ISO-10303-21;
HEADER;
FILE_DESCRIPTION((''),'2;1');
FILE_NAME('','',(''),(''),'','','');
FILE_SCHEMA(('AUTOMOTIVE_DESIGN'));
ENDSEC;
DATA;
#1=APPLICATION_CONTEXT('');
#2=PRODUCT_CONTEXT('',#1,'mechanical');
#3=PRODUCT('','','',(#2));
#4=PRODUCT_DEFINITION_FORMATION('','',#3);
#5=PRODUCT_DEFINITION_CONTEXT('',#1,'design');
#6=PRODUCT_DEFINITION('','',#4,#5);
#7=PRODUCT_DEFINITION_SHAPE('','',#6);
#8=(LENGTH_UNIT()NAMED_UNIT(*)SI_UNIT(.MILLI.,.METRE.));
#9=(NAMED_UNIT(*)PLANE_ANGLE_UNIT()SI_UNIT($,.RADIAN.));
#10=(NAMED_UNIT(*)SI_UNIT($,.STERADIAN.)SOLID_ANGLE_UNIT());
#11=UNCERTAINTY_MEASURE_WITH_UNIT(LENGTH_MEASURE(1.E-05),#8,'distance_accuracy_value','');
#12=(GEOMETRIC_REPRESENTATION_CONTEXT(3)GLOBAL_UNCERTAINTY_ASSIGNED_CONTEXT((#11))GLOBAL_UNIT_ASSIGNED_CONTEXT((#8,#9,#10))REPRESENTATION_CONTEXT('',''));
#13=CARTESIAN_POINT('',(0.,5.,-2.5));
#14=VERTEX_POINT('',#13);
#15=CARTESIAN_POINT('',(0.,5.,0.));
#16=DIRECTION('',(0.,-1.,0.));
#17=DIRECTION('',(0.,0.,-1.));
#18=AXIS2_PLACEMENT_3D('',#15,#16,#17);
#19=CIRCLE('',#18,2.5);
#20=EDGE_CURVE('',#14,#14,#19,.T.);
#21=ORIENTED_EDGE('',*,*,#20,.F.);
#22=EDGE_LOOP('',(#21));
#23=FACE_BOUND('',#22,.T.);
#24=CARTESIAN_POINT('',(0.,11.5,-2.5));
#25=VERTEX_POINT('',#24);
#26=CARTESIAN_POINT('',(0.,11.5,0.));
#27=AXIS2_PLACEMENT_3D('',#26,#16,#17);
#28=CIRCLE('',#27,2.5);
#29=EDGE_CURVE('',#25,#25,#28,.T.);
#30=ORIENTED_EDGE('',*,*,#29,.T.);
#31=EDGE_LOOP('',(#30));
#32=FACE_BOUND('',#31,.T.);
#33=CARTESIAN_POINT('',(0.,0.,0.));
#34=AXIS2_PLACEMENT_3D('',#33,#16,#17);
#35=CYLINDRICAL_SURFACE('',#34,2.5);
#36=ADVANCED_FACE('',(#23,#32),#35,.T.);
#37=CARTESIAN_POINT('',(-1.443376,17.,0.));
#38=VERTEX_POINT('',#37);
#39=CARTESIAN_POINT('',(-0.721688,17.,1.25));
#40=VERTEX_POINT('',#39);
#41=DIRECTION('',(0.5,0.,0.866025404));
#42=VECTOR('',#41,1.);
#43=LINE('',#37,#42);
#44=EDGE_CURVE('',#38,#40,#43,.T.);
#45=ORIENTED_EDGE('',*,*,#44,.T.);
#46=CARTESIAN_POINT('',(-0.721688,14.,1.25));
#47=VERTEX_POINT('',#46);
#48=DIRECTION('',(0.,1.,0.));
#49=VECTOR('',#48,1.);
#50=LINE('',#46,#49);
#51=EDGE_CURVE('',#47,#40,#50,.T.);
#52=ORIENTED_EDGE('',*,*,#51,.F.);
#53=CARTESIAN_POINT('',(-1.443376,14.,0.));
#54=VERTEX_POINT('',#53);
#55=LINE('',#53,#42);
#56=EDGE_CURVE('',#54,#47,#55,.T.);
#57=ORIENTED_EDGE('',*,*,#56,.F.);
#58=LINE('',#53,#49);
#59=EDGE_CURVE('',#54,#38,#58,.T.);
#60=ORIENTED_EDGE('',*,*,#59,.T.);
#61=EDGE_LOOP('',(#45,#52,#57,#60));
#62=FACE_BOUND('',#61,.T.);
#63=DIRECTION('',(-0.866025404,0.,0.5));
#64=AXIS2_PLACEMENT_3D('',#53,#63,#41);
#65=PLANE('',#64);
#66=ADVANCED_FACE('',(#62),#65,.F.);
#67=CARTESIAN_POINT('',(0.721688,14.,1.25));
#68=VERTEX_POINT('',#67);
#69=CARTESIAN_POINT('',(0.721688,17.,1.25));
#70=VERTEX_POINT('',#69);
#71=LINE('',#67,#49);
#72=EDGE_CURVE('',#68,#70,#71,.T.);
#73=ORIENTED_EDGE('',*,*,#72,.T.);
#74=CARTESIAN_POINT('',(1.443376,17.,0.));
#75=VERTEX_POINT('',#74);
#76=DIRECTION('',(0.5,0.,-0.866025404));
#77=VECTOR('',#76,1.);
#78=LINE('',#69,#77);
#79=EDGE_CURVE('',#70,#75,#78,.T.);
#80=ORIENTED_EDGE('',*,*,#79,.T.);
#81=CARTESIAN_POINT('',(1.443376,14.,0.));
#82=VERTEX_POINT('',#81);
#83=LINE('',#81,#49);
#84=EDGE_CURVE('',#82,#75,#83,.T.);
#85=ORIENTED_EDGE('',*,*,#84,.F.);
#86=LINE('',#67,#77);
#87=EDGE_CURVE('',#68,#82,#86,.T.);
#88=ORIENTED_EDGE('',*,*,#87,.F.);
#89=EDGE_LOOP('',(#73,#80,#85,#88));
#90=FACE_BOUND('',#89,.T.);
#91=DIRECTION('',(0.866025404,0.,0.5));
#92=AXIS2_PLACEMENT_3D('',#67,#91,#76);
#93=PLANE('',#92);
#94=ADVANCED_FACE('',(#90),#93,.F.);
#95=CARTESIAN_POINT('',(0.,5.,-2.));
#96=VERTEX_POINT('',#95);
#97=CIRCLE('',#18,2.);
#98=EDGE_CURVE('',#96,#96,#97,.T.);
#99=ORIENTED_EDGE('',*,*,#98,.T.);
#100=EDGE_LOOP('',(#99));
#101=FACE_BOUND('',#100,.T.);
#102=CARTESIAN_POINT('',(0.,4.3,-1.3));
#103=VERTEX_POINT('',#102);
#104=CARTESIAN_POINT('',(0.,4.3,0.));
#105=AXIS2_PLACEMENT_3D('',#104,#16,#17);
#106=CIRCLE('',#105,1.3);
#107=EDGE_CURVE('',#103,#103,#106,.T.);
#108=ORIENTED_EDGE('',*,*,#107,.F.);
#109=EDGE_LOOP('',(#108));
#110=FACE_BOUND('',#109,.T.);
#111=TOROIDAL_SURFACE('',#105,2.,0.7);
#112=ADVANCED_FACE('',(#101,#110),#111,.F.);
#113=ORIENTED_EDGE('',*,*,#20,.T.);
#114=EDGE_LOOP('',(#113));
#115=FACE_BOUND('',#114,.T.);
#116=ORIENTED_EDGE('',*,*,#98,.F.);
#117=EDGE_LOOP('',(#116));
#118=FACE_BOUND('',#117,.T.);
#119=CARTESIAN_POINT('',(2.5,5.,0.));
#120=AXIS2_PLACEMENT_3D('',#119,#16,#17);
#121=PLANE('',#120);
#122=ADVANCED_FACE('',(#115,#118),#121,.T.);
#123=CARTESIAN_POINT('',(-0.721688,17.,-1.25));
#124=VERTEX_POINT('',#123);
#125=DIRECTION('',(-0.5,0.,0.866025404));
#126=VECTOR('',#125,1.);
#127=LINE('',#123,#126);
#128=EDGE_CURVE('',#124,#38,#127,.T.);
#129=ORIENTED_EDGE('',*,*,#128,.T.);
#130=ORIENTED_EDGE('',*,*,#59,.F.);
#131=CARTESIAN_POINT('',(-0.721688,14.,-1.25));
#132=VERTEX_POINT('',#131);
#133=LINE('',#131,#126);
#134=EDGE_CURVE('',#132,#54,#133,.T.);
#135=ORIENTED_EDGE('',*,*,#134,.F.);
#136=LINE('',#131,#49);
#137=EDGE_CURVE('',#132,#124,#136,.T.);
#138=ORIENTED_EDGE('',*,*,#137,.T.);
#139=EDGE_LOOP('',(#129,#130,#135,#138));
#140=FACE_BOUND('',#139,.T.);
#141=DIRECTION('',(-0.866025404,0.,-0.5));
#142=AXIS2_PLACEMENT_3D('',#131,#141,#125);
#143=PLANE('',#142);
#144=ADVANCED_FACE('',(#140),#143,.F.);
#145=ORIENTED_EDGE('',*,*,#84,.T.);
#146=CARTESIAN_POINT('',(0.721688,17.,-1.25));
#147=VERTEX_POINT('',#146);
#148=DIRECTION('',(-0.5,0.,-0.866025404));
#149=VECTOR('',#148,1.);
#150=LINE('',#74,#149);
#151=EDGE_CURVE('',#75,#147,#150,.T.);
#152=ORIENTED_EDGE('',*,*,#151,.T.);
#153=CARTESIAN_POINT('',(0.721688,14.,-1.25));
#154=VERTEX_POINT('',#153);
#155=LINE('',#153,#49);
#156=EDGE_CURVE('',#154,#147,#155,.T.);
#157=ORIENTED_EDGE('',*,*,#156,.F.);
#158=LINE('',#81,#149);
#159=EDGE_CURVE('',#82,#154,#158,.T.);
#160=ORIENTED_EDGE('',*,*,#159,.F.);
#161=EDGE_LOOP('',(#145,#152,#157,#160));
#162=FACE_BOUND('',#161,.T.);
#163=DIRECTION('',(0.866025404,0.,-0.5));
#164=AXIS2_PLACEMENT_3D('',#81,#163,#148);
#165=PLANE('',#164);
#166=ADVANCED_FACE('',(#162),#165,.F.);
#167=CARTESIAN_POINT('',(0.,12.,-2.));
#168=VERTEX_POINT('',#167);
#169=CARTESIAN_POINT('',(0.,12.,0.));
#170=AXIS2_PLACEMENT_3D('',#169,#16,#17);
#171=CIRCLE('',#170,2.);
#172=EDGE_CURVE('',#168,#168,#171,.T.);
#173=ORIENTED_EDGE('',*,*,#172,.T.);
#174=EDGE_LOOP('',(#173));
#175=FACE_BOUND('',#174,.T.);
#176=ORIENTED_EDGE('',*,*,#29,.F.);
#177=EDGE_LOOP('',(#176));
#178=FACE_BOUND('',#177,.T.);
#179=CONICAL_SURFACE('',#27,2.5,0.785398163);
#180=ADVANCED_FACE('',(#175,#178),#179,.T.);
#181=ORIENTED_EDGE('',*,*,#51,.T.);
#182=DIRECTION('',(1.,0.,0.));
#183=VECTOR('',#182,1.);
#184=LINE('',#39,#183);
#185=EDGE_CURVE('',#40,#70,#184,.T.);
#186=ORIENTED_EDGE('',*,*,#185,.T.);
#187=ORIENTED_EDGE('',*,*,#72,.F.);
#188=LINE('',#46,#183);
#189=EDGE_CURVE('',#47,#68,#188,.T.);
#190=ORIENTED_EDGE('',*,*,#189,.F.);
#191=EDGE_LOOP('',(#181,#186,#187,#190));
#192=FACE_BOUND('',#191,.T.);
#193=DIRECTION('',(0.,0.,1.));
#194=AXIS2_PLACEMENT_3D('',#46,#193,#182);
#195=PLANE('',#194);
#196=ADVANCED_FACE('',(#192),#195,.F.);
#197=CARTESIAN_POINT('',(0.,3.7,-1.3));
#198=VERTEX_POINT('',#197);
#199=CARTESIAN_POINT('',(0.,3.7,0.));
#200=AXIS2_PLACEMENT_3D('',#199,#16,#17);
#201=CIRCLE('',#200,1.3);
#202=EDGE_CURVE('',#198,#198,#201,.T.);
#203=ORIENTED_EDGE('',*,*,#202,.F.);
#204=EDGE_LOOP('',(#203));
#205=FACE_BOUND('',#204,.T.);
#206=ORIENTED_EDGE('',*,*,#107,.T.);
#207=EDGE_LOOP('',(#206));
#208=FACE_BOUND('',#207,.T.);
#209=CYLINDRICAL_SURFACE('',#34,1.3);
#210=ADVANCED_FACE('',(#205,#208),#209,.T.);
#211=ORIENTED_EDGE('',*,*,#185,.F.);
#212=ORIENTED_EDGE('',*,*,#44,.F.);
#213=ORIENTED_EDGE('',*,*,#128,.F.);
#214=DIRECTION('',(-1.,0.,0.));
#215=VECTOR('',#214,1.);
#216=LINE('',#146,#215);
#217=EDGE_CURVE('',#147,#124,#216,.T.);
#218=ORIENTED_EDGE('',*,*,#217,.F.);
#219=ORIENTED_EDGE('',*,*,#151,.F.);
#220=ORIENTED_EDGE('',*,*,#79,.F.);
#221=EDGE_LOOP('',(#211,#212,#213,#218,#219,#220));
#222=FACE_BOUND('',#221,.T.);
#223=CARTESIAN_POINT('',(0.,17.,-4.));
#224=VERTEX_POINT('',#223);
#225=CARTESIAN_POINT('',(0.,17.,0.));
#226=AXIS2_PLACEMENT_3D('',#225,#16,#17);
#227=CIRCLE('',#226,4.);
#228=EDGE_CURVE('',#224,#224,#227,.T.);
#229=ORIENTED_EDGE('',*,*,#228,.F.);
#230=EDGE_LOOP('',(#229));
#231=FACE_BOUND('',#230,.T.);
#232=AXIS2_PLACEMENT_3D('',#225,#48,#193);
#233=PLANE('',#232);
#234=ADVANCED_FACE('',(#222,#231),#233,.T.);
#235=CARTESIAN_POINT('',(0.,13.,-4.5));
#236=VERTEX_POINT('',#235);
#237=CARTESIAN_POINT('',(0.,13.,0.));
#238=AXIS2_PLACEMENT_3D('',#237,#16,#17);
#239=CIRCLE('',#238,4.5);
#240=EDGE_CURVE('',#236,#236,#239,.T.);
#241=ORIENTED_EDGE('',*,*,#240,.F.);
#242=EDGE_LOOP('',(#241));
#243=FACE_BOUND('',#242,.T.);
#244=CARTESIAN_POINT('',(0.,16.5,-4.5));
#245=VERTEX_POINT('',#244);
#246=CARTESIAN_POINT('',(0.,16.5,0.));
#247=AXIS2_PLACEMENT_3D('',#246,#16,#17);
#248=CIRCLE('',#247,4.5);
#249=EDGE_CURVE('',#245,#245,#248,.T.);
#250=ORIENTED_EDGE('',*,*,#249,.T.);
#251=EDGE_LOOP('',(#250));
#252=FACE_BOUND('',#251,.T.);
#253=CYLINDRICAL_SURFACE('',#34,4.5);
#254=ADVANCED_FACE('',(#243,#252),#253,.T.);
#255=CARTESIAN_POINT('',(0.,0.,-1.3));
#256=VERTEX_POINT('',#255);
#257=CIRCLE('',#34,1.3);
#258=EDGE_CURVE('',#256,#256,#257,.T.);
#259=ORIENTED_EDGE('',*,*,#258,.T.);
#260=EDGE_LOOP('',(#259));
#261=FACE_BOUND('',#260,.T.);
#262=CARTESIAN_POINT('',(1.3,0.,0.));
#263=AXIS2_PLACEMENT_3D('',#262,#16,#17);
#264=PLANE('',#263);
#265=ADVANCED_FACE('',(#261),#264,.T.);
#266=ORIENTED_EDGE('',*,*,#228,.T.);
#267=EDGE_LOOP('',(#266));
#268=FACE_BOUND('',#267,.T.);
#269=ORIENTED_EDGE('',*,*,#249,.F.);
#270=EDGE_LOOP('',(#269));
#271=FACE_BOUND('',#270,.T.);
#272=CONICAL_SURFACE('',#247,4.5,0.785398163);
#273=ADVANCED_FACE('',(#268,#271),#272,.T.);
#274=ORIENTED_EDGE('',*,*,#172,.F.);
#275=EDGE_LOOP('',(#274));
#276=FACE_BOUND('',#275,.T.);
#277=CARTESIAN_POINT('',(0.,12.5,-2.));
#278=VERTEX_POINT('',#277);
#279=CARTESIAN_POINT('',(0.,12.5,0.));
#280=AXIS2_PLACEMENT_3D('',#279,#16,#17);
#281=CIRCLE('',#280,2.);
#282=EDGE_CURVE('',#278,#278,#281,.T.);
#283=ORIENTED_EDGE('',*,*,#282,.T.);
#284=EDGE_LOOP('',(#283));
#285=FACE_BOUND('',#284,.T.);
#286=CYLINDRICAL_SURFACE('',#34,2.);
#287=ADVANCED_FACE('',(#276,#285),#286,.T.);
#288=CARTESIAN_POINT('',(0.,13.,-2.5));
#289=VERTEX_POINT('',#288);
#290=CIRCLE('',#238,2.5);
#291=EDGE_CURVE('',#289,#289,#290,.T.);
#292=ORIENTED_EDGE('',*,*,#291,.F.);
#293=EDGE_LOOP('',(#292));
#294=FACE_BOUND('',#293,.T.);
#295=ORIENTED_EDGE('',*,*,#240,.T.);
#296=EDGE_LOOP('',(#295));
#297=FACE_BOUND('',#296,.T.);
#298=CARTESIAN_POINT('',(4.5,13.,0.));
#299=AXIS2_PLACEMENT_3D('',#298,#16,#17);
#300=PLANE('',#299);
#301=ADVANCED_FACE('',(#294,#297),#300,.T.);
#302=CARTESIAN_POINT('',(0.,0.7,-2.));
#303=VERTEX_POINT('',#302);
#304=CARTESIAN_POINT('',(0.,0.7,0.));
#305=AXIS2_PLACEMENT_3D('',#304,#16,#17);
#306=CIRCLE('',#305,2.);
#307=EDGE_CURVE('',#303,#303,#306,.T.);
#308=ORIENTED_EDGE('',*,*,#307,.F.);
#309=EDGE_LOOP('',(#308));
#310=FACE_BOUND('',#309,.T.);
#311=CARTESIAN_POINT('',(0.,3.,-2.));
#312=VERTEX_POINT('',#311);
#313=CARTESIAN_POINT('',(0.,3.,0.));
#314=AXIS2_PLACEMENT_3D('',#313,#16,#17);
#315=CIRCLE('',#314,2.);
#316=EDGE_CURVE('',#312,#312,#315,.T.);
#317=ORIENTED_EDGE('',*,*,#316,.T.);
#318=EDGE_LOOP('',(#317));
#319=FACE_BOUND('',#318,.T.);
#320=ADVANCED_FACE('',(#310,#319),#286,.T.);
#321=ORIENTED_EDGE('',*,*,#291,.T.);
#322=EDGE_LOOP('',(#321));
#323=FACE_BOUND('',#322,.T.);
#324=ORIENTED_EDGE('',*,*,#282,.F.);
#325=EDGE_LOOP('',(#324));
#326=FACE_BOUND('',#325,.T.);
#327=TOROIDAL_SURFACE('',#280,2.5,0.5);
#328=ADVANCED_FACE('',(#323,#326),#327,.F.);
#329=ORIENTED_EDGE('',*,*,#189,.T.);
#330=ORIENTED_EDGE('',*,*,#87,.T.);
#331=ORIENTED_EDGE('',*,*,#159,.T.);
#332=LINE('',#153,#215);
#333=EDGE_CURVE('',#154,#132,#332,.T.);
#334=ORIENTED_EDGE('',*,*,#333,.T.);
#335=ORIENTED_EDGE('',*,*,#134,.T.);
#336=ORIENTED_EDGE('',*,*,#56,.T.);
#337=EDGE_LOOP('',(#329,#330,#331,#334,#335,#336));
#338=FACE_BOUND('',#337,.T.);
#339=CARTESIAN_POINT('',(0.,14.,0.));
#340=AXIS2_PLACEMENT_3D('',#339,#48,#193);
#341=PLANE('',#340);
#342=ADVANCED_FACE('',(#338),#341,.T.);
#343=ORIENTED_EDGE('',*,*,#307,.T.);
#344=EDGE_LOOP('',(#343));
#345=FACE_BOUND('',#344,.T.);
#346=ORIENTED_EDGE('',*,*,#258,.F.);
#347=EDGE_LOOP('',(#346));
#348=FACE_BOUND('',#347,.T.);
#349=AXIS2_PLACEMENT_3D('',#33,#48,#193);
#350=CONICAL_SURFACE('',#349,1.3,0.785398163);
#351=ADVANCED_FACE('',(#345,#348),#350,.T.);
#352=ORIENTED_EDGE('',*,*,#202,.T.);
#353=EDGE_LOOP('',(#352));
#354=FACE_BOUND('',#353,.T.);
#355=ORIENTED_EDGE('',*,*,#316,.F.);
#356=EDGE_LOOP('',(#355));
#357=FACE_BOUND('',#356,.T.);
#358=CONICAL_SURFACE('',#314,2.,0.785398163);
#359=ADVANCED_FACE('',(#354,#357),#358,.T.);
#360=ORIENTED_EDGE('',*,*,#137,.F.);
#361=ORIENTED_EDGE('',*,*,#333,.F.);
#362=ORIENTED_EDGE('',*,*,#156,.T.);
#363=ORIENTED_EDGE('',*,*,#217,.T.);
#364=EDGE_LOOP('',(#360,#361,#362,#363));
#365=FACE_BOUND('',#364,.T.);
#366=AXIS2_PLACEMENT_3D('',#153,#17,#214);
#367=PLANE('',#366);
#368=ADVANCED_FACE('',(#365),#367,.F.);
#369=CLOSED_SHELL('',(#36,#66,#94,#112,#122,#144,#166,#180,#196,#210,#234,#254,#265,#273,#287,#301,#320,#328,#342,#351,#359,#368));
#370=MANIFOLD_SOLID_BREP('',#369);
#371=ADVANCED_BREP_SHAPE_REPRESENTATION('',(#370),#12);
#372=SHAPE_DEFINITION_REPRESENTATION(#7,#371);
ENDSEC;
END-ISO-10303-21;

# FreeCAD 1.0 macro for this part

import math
import FreeCAD as App
import Part
import Sketcher
from FreeCAD import Vector
Q = App.Units.Quantity


def add_polygon(sketch, points):
    """Adds a closed chain of lines whose ends are joined by coincident constraints."""
    first, n = sketch.GeometryCount, len(points)
    for a, b in zip(points, points[1:] + points[:1]):
        sketch.addGeometry(Part.LineSegment(App.Vector(*a, 0), App.Vector(*b, 0)), False)
    for i in range(n):
        sketch.addConstraint(Sketcher.Constraint("Coincident", first + i, 2, first + (i + 1) % n, 1))

doc = App.newDocument("Part")
body = doc.addObject("PartDesign::Body", "Body")

sketch1 = doc.addObject("Sketcher::SketchObject", "Sketch")
body.addObject(sketch1)
sketch1.AttachmentSupport = (doc.XY_Plane, [""])
sketch1.MapMode = "FlatFace"
sketch1.addGeometry([
    Part.LineSegment(Vector(0, 17, 0), Vector(0, 0, 0)),
    Part.LineSegment(Vector(0, 0, 0), Vector(1.3, 0, 0)),
    Part.LineSegment(Vector(1.3, 0, 0), Vector(2, 0.7, 0)),
    Part.LineSegment(Vector(2, 0.7, 0), Vector(2, 3, 0)),
    Part.LineSegment(Vector(2, 3, 0), Vector(1.3, 3.7, 0)),
    Part.LineSegment(Vector(1.3, 3.7, 0), Vector(1.3, 4.3, 0)),
    Part.ArcOfCircle(Part.Circle(Vector(2, 4.3, 0), Vector(0, 0, 1), 0.7), math.radians(90), math.radians(180)),
    Part.LineSegment(Vector(2, 5, 0), Vector(2.5, 5, 0)),
    Part.LineSegment(Vector(2.5, 5, 0), Vector(2.5, 11.5, 0)),
    Part.LineSegment(Vector(2.5, 11.5, 0), Vector(2, 12, 0)),
    Part.LineSegment(Vector(2, 12, 0), Vector(2, 12.5, 0)),
    Part.ArcOfCircle(Part.Circle(Vector(2.5, 12.5, 0), Vector(0, 0, 1), 0.5), math.radians(90), math.radians(180)),
    Part.LineSegment(Vector(2.5, 13, 0), Vector(4.5, 13, 0)),
    Part.LineSegment(Vector(4.5, 13, 0), Vector(4.5, 16.5, 0)),
    Part.LineSegment(Vector(4.5, 16.5, 0), Vector(4, 17, 0)),
    Part.LineSegment(Vector(4, 17, 0), Vector(0, 17, 0)),
], False)
sketch1.addConstraint([
    Sketcher.Constraint("Coincident", 0, 2, 1, 1),
    Sketcher.Constraint("Coincident", 1, 2, 2, 1),
    Sketcher.Constraint("Coincident", 2, 2, 3, 1),
    Sketcher.Constraint("Coincident", 3, 2, 4, 1),
    Sketcher.Constraint("Coincident", 4, 2, 5, 1),
    Sketcher.Constraint("Tangent", 5, 2, 6, 2),
    Sketcher.Constraint("Tangent", 6, 1, 7, 1),
    Sketcher.Constraint("Coincident", 7, 2, 8, 1),
    Sketcher.Constraint("Coincident", 8, 2, 9, 1),
    Sketcher.Constraint("Coincident", 9, 2, 10, 1),
    Sketcher.Constraint("Tangent", 10, 2, 11, 2),
    Sketcher.Constraint("Tangent", 11, 1, 12, 1),
    Sketcher.Constraint("Coincident", 12, 2, 13, 1),
    Sketcher.Constraint("Coincident", 13, 2, 14, 1),
    Sketcher.Constraint("Coincident", 14, 2, 15, 1),
    Sketcher.Constraint("Coincident", 15, 2, 0, 1),
    Sketcher.Constraint("Vertical", 0),
    Sketcher.Constraint("Horizontal", 1),
    Sketcher.Constraint("Vertical", 3),
    Sketcher.Constraint("Vertical", 5),
    Sketcher.Constraint("Horizontal", 7),
    Sketcher.Constraint("Vertical", 8),
    Sketcher.Constraint("Vertical", 10),
    Sketcher.Constraint("Horizontal", 12),
    Sketcher.Constraint("Vertical", 13),
    Sketcher.Constraint("Horizontal", 15),
    Sketcher.Constraint("Coincident", 0, 2, -1, 1),
    Sketcher.Constraint("Perpendicular", 2, 4),
    Sketcher.Constraint("Parallel", 4, 9),
    Sketcher.Constraint("Parallel", 9, 14),
    Sketcher.Constraint("Vertical", 6, 3, 2, 2),
    Sketcher.Constraint("Vertical", 1, 2, 4, 2),
    Sketcher.Constraint("Vertical", 11, 3, 7, 2),
    Sketcher.Constraint("Vertical", 6, 1, 9, 2),
    Sketcher.Constraint("Equal", 7, 10),
    Sketcher.Constraint("Equal", 2, 4),
    Sketcher.Constraint("Equal", 9, 14),
    Sketcher.Constraint("Radius", 6, Q("0.7 mm")),
    Sketcher.Constraint("Radius", 11, Q("0.5 mm")),
    Sketcher.Constraint("DistanceX", 12, 1, 12, 2, Q("2 mm")),
    Sketcher.Constraint("DistanceX", 15, 2, 15, 1, Q("4 mm")),
    Sketcher.Constraint("DistanceY", 0, 2, 0, 1, Q("17 mm")),
    Sketcher.Constraint("DistanceY", 3, 1, 3, 2, Q("2.3 mm")),
    Sketcher.Constraint("DistanceY", 5, 1, 5, 2, Q("0.6 mm")),
    Sketcher.Constraint("DistanceY", 8, 1, 8, 2, Q("6.5 mm")),
])
revolution = doc.addObject("PartDesign::Revolution", "Revolution")
body.addObject(revolution)
revolution.Profile = sketch1
revolution.ReferenceAxis = (sketch1, ["V_Axis"])
revolution.Angle = 360

sketch2 = doc.addObject("Sketcher::SketchObject", "Sketch001")
body.addObject(sketch2)
sketch2.AttachmentSupport = (doc.XZ_Plane, [""])
sketch2.MapMode = "FlatFace"
sketch2.AttachmentOffset = App.Placement(Vector(0, 0, -17), App.Rotation())
add_polygon(sketch2, [(0.721688, -1.25), (-0.721688, -1.25), (-1.443376, 0), (-0.721688, 1.25), (0.721688, 1.25), (1.443376, 0)])
sketch2.addConstraint([
    Sketcher.Constraint("Horizontal", 0),
    Sketcher.Constraint("Horizontal", 3),
    Sketcher.Constraint("Symmetric", 0, 2, 3, 2, -1, 1),
    Sketcher.Constraint("Symmetric", 1, 2, 4, 2, -1, 1),
    Sketcher.Constraint("PointOnObject", 1, 2, -1),
    Sketcher.Constraint("Parallel", 2, 5),
    Sketcher.Constraint("Vertical", 0, 2, 2, 2),
    Sketcher.Constraint("Angle", 1, Q("120 deg")),
    Sketcher.Constraint("DistanceY", 0, 2, 2, 2, Q("2.5 mm")),
    Sketcher.Constraint("DistanceX", 0, 2, 0, 1, Q("1.443376 mm")),
])
pocket1 = doc.addObject("PartDesign::Pocket", "Pocket")
body.addObject(pocket1)
pocket1.Profile = sketch2
pocket1.Length = 3
pocket1.Reversed = True

doc.recompute()
